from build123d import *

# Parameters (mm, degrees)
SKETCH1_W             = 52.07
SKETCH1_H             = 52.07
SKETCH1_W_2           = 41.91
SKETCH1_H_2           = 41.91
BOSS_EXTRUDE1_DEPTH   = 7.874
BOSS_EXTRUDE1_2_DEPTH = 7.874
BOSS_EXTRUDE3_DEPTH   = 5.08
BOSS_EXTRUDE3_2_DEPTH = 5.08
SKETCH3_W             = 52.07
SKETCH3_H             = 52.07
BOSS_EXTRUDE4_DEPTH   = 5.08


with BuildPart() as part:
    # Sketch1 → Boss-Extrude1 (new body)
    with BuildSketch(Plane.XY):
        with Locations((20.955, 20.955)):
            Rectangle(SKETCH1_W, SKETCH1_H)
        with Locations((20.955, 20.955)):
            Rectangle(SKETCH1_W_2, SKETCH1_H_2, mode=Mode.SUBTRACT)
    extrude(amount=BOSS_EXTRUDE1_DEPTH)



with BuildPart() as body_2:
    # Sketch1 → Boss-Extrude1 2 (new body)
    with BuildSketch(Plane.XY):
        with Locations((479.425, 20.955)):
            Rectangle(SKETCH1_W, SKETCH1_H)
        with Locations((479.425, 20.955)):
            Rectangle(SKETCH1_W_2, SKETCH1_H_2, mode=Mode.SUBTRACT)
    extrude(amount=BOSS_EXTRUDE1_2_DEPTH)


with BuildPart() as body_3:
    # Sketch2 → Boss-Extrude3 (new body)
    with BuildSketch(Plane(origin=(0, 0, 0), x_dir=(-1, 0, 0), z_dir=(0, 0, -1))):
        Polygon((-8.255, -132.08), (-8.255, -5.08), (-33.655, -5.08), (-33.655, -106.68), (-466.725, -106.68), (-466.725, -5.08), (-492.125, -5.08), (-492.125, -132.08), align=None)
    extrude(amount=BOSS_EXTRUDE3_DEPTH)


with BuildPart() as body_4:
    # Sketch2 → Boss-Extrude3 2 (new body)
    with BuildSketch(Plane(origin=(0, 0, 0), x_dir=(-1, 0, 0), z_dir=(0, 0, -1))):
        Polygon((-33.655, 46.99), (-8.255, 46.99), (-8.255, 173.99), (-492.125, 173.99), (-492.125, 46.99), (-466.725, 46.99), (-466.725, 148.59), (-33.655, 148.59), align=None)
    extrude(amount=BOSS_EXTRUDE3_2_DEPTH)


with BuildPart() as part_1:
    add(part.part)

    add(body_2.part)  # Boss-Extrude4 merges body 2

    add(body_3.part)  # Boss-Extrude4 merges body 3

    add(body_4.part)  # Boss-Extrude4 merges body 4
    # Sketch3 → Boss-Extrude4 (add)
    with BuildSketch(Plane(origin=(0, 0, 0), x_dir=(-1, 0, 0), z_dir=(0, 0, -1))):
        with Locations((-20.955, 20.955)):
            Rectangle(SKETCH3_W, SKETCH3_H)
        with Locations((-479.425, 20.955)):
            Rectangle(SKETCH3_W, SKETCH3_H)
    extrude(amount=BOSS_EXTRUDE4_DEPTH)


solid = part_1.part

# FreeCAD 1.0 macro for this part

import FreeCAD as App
import Part
import Sketcher

V = App.Vector
Q = App.Units.Quantity

doc = App.newDocument("Part")
body = doc.addObject("PartDesign::Body", "Body")

sketch1 = body.newObject("Sketcher::SketchObject", "Sketch")
sketch1.AttachmentSupport = (doc.getObject("XY_Plane"), [""])
sketch1.MapMode = "FlatFace"
sketch1.addGeometry(Part.LineSegment(V(-5, 47, 0), V(-5, -5, 0)), False)
sketch1.addGeometry(Part.LineSegment(V(-5, -5, 0), V(47, -5, 0)), False)
sketch1.addGeometry(Part.LineSegment(V(47, -5, 0), V(47, 47, 0)), False)
sketch1.addGeometry(Part.LineSegment(V(47, 47, 0), V(-5, 47, 0)), False)
sketch1.addGeometry(Part.LineSegment(V(42, 0, 0), V(0, 0, 0)), False)
sketch1.addGeometry(Part.LineSegment(V(0, 0, 0), V(0, 42, 0)), False)
sketch1.addGeometry(Part.LineSegment(V(0, 42, 0), V(42, 42, 0)), False)
sketch1.addGeometry(Part.LineSegment(V(42, 42, 0), V(42, 0, 0)), False)
sketch1.addConstraint(Sketcher.Constraint("Coincident", 0, 2, 1, 1))
sketch1.addConstraint(Sketcher.Constraint("Coincident", 1, 2, 2, 1))
sketch1.addConstraint(Sketcher.Constraint("Coincident", 2, 2, 3, 1))
sketch1.addConstraint(Sketcher.Constraint("Coincident", 3, 2, 0, 1))
sketch1.addConstraint(Sketcher.Constraint("Coincident", 4, 2, 5, 1))
sketch1.addConstraint(Sketcher.Constraint("Coincident", 5, 2, 6, 1))
sketch1.addConstraint(Sketcher.Constraint("Coincident", 6, 2, 7, 1))
sketch1.addConstraint(Sketcher.Constraint("Coincident", 7, 2, 4, 1))
sketch1.addConstraint(Sketcher.Constraint("Vertical", 0))
sketch1.addConstraint(Sketcher.Constraint("Horizontal", 1))
sketch1.addConstraint(Sketcher.Constraint("Vertical", 2))
sketch1.addConstraint(Sketcher.Constraint("Horizontal", 3))
sketch1.addConstraint(Sketcher.Constraint("Horizontal", 4))
sketch1.addConstraint(Sketcher.Constraint("Vertical", 5))
sketch1.addConstraint(Sketcher.Constraint("Horizontal", 6))
sketch1.addConstraint(Sketcher.Constraint("Vertical", 7))
sketch1.addConstraint(Sketcher.Constraint("Coincident", 4, 2, -1, 1))
sketch1.addConstraint(Sketcher.Constraint("Equal", 3, 0))
sketch1.addConstraint(Sketcher.Constraint("Equal", 6, 5))
sketch1.addConstraint(Sketcher.Constraint("DistanceX", 1, 1, 1, 2, Q("2.05 in")))
sketch1.addConstraint(Sketcher.Constraint("DistanceX", 4, 2, 4, 1, Q("1.65 in")))
sketch1.addConstraint(Sketcher.Constraint("DistanceX", 0, 2, -1, 1, Q("0.2 in")))
sketch1.addConstraint(Sketcher.Constraint("DistanceY", 0, 2, -1, 1, Q("0.2 in")))
pad1 = body.newObject("PartDesign::Pad", "Pad")
pad1.Profile = sketch1
pad1.Length = Q("0.31 in")
body2 = doc.addObject("PartDesign::Body", "Body001")

sketch2 = body2.newObject("Sketcher::SketchObject", "Sketch001")
sketch2.AttachmentSupport = (doc.getObject("XY_Plane001"), [""])
sketch2.MapMode = "FlatFace"
sketch2.addGeometry(Part.LineSegment(V(453, 47, 0), V(453, -5, 0)), False)
sketch2.addGeometry(Part.LineSegment(V(453, -5, 0), V(505, -5, 0)), False)
sketch2.addGeometry(Part.LineSegment(V(505, -5, 0), V(505, 47, 0)), False)
sketch2.addGeometry(Part.LineSegment(V(505, 47, 0), V(453, 47, 0)), False)
sketch2.addGeometry(Part.LineSegment(V(500, 0, 0), V(458, 0, 0)), False)
sketch2.addGeometry(Part.LineSegment(V(458, 0, 0), V(458, 42, 0)), False)
sketch2.addGeometry(Part.LineSegment(V(458, 42, 0), V(500, 42, 0)), False)
sketch2.addGeometry(Part.LineSegment(V(500, 42, 0), V(500, 0, 0)), False)
sketch2.addConstraint(Sketcher.Constraint("Coincident", 0, 2, 1, 1))
sketch2.addConstraint(Sketcher.Constraint("Coincident", 1, 2, 2, 1))
sketch2.addConstraint(Sketcher.Constraint("Coincident", 2, 2, 3, 1))
sketch2.addConstraint(Sketcher.Constraint("Coincident", 3, 2, 0, 1))
sketch2.addConstraint(Sketcher.Constraint("Coincident", 4, 2, 5, 1))
sketch2.addConstraint(Sketcher.Constraint("Coincident", 5, 2, 6, 1))
sketch2.addConstraint(Sketcher.Constraint("Coincident", 6, 2, 7, 1))
sketch2.addConstraint(Sketcher.Constraint("Coincident", 7, 2, 4, 1))
sketch2.addConstraint(Sketcher.Constraint("Vertical", 0))
sketch2.addConstraint(Sketcher.Constraint("Horizontal", 1))
sketch2.addConstraint(Sketcher.Constraint("Vertical", 2))
sketch2.addConstraint(Sketcher.Constraint("Horizontal", 3))
sketch2.addConstraint(Sketcher.Constraint("Horizontal", 4))
sketch2.addConstraint(Sketcher.Constraint("Vertical", 5))
sketch2.addConstraint(Sketcher.Constraint("Horizontal", 6))
sketch2.addConstraint(Sketcher.Constraint("Vertical", 7))
sketch2.addConstraint(Sketcher.Constraint("PointOnObject", 4, 2, -1))
sketch2.addConstraint(Sketcher.Constraint("Equal", 3, 0))
sketch2.addConstraint(Sketcher.Constraint("Equal", 6, 5))
sketch2.addConstraint(Sketcher.Constraint("DistanceX", 1, 1, 1, 2, Q("2.05 in")))
sketch2.addConstraint(Sketcher.Constraint("DistanceX", 4, 2, 4, 1, Q("1.65 in")))
sketch2.addConstraint(Sketcher.Constraint("DistanceY", 0, 2, -1, 1, Q("0.2 in")))
sketch2.addConstraint(Sketcher.Constraint("DistanceX", -1, 1, 1, 2, Q("19.9 in")))
sketch2.addConstraint(Sketcher.Constraint("DistanceX", -1, 1, 6, 2, Q("19.7 in")))
pad2 = body2.newObject("PartDesign::Pad", "Pad001")
pad2.Profile = sketch2
pad2.Length = Q("0.31 in")
body3 = doc.addObject("PartDesign::Body", "Body002")

sketch3 = body3.newObject("Sketcher::SketchObject", "Sketch002")
sketch3.AttachmentSupport = (doc.getObject("XY_Plane002"), [""])
sketch3.MapMode = "FlatFace"
sketch3.addGeometry(Part.LineSegment(V(8, -132, 0), V(8, -5, 0)), False)
sketch3.addGeometry(Part.LineSegment(V(8, -5, 0), V(34, -5, 0)), False)
sketch3.addGeometry(Part.LineSegment(V(34, -5, 0), V(34, -107, 0)), False)
sketch3.addGeometry(Part.LineSegment(V(34, -107, 0), V(467, -107, 0)), False)
sketch3.addGeometry(Part.LineSegment(V(467, -107, 0), V(467, -5, 0)), False)
sketch3.addGeometry(Part.LineSegment(V(467, -5, 0), V(492, -5, 0)), False)
sketch3.addGeometry(Part.LineSegment(V(492, -5, 0), V(492, -132, 0)), False)
sketch3.addGeometry(Part.LineSegment(V(492, -132, 0), V(8, -132, 0)), False)
sketch3.addConstraint(Sketcher.Constraint("Coincident", 0, 2, 1, 1))
sketch3.addConstraint(Sketcher.Constraint("Coincident", 1, 2, 2, 1))
sketch3.addConstraint(Sketcher.Constraint("Coincident", 2, 2, 3, 1))
sketch3.addConstraint(Sketcher.Constraint("Coincident", 3, 2, 4, 1))
sketch3.addConstraint(Sketcher.Constraint("Coincident", 4, 2, 5, 1))
sketch3.addConstraint(Sketcher.Constraint("Coincident", 5, 2, 6, 1))
sketch3.addConstraint(Sketcher.Constraint("Coincident", 6, 2, 7, 1))
sketch3.addConstraint(Sketcher.Constraint("Coincident", 7, 2, 0, 1))
sketch3.addConstraint(Sketcher.Constraint("Vertical", 0))
sketch3.addConstraint(Sketcher.Constraint("Horizontal", 1))
sketch3.addConstraint(Sketcher.Constraint("Vertical", 2))
sketch3.addConstraint(Sketcher.Constraint("Horizontal", 3))
sketch3.addConstraint(Sketcher.Constraint("Vertical", 4))
sketch3.addConstraint(Sketcher.Constraint("Horizontal", 5))
sketch3.addConstraint(Sketcher.Constraint("Vertical", 6))
sketch3.addConstraint(Sketcher.Constraint("Horizontal", 7))
sketch3.addConstraint(Sketcher.Constraint("Horizontal", 1, 2, 4, 2))
sketch3.addConstraint(Sketcher.Constraint("Equal", 1, 5))
sketch3.addConstraint(Sketcher.Constraint("DistanceX", 1, 1, 1, 2, Q("1 in")))
sketch3.addConstraint(Sketcher.Constraint("DistanceY", 0, 1, 0, 2, Q("5 in")))
sketch3.addConstraint(Sketcher.Constraint("DistanceY", 2, 2, 2, 1, Q("4 in")))
sketch3.addConstraint(Sketcher.Constraint("DistanceX", 3, 1, 3, 2, Q("17.05 in")))
sketch3.addConstraint(Sketcher.Constraint("DistanceY", 0, 2, -1, 1, Q("0.2 in")))
sketch3.addConstraint(Sketcher.Constraint("DistanceX", -1, 1, 0, 2, Q("0.325 in")))
pad3 = body3.newObject("PartDesign::Pad", "Pad002")
pad3.Profile = sketch3
pad3.Length = Q("0.2 in")
pad3.Reversed = True
body4 = doc.addObject("PartDesign::Body", "Body003")

sketch4 = body4.newObject("Sketcher::SketchObject", "Sketch003")
sketch4.AttachmentSupport = (doc.getObject("XY_Plane003"), [""])
sketch4.MapMode = "FlatFace"
sketch4.addGeometry(Part.LineSegment(V(34, 47, 0), V(8, 47, 0)), False)
sketch4.addGeometry(Part.LineSegment(V(8, 47, 0), V(8, 174, 0)), False)
sketch4.addGeometry(Part.LineSegment(V(8, 174, 0), V(492, 174, 0)), False)
sketch4.addGeometry(Part.LineSegment(V(492, 174, 0), V(492, 47, 0)), False)
sketch4.addGeometry(Part.LineSegment(V(492, 47, 0), V(467, 47, 0)), False)
sketch4.addGeometry(Part.LineSegment(V(467, 47, 0), V(467, 149, 0)), False)
sketch4.addGeometry(Part.LineSegment(V(467, 149, 0), V(34, 149, 0)), False)
sketch4.addGeometry(Part.LineSegment(V(34, 149, 0), V(34, 47, 0)), False)
sketch4.addConstraint(Sketcher.Constraint("Coincident", 0, 2, 1, 1))
sketch4.addConstraint(Sketcher.Constraint("Coincident", 1, 2, 2, 1))
sketch4.addConstraint(Sketcher.Constraint("Coincident", 2, 2, 3, 1))
sketch4.addConstraint(Sketcher.Constraint("Coincident", 3, 2, 4, 1))
sketch4.addConstraint(Sketcher.Constraint("Coincident", 4, 2, 5, 1))
sketch4.addConstraint(Sketcher.Constraint("Coincident", 5, 2, 6, 1))
sketch4.addConstraint(Sketcher.Constraint("Coincident", 6, 2, 7, 1))
sketch4.addConstraint(Sketcher.Constraint("Coincident", 7, 2, 0, 1))
sketch4.addConstraint(Sketcher.Constraint("Horizontal", 0))
sketch4.addConstraint(Sketcher.Constraint("Vertical", 1))
sketch4.addConstraint(Sketcher.Constraint("Horizontal", 2))
sketch4.addConstraint(Sketcher.Constraint("Vertical", 3))
sketch4.addConstraint(Sketcher.Constraint("Horizontal", 4))
sketch4.addConstraint(Sketcher.Constraint("Vertical", 5))
sketch4.addConstraint(Sketcher.Constraint("Horizontal", 6))
sketch4.addConstraint(Sketcher.Constraint("Vertical", 7))
sketch4.addConstraint(Sketcher.Constraint("Horizontal", 0, 2, 3, 2))
sketch4.addConstraint(Sketcher.Constraint("Equal", 0, 4))
sketch4.addConstraint(Sketcher.Constraint("DistanceX", 0, 2, 0, 1, Q("1 in")))
sketch4.addConstraint(Sketcher.Constraint("DistanceY", 1, 1, 1, 2, Q("5 in")))
sketch4.addConstraint(Sketcher.Constraint("DistanceY", 5, 1, 5, 2, Q("4 in")))
sketch4.addConstraint(Sketcher.Constraint("DistanceX", 2, 1, 2, 2, Q("19.05 in")))
sketch4.addConstraint(Sketcher.Constraint("DistanceY", -1, 1, 0, 2, Q("1.85 in")))
sketch4.addConstraint(Sketcher.Constraint("DistanceX", -1, 1, 0, 2, Q("0.325 in")))
pad4 = body4.newObject("PartDesign::Pad", "Pad003")
pad4.Profile = sketch4
pad4.Length = Q("0.2 in")
pad4.Reversed = True
body.AllowCompound = True
doc.recompute()

boolean = body.newObject("PartDesign::Boolean", "Boolean")
boolean.Type = "Fuse"
boolean.addObjects([body2])
doc.recompute()

boolean2 = body.newObject("PartDesign::Boolean", "Boolean001")
boolean2.Type = "Fuse"
boolean2.addObjects([body3])
doc.recompute()

boolean3 = body.newObject("PartDesign::Boolean", "Boolean002")
boolean3.Type = "Fuse"
boolean3.addObjects([body4])

sketch5 = body.newObject("Sketcher::SketchObject", "Sketch004")
sketch5.AttachmentSupport = (doc.getObject("XY_Plane"), [""])
sketch5.MapMode = "FlatFace"
sketch5.addGeometry(Part.LineSegment(V(47, 47, 0), V(47, -5, 0)), False)
sketch5.addGeometry(Part.LineSegment(V(47, -5, 0), V(-5, -5, 0)), False)
sketch5.addGeometry(Part.LineSegment(V(-5, -5, 0), V(-5, 47, 0)), False)
sketch5.addGeometry(Part.LineSegment(V(-5, 47, 0), V(47, 47, 0)), False)
sketch5.addGeometry(Part.LineSegment(V(505, 47, 0), V(505, -5, 0)), False)
sketch5.addGeometry(Part.LineSegment(V(505, -5, 0), V(453, -5, 0)), False)
sketch5.addGeometry(Part.LineSegment(V(453, -5, 0), V(453, 47, 0)), False)
sketch5.addGeometry(Part.LineSegment(V(453, 47, 0), V(505, 47, 0)), False)
sketch5.addConstraint(Sketcher.Constraint("Coincident", 0, 2, 1, 1))
sketch5.addConstraint(Sketcher.Constraint("Coincident", 1, 2, 2, 1))
sketch5.addConstraint(Sketcher.Constraint("Coincident", 2, 2, 3, 1))
sketch5.addConstraint(Sketcher.Constraint("Coincident", 3, 2, 0, 1))
sketch5.addConstraint(Sketcher.Constraint("Coincident", 4, 2, 5, 1))
sketch5.addConstraint(Sketcher.Constraint("Coincident", 5, 2, 6, 1))
sketch5.addConstraint(Sketcher.Constraint("Coincident", 6, 2, 7, 1))
sketch5.addConstraint(Sketcher.Constraint("Coincident", 7, 2, 4, 1))
sketch5.addConstraint(Sketcher.Constraint("Vertical", 0))
sketch5.addConstraint(Sketcher.Constraint("Horizontal", 1))
sketch5.addConstraint(Sketcher.Constraint("Vertical", 2))
sketch5.addConstraint(Sketcher.Constraint("Horizontal", 3))
sketch5.addConstraint(Sketcher.Constraint("Vertical", 4))
sketch5.addConstraint(Sketcher.Constraint("Horizontal", 5))
sketch5.addConstraint(Sketcher.Constraint("Vertical", 6))
sketch5.addConstraint(Sketcher.Constraint("Horizontal", 7))
sketch5.addConstraint(Sketcher.Constraint("Horizontal", 1, 2, 4, 2))
sketch5.addConstraint(Sketcher.Constraint("Horizontal", 3, 2, 6, 2))
sketch5.addConstraint(Sketcher.Constraint("Equal", 3, 5))
sketch5.addConstraint(Sketcher.Constraint("Equal", 7, 0))
sketch5.addConstraint(Sketcher.Constraint("DistanceX", 0, 2, 5, 2, Q("16 in")))
sketch5.addConstraint(Sketcher.Constraint("DistanceX", 1, 2, 1, 1, Q("2.05 in")))
sketch5.addConstraint(Sketcher.Constraint("DistanceY", 0, 2, -1, 1, Q("0.2 in")))
sketch5.addConstraint(Sketcher.Constraint("DistanceX", 1, 2, -1, 1, Q("0.2 in")))
pad5 = body.newObject("PartDesign::Pad", "Pad004")
pad5.Profile = sketch5
pad5.Length = Q("0.2 in")
pad5.Reversed = True

doc.recompute()
